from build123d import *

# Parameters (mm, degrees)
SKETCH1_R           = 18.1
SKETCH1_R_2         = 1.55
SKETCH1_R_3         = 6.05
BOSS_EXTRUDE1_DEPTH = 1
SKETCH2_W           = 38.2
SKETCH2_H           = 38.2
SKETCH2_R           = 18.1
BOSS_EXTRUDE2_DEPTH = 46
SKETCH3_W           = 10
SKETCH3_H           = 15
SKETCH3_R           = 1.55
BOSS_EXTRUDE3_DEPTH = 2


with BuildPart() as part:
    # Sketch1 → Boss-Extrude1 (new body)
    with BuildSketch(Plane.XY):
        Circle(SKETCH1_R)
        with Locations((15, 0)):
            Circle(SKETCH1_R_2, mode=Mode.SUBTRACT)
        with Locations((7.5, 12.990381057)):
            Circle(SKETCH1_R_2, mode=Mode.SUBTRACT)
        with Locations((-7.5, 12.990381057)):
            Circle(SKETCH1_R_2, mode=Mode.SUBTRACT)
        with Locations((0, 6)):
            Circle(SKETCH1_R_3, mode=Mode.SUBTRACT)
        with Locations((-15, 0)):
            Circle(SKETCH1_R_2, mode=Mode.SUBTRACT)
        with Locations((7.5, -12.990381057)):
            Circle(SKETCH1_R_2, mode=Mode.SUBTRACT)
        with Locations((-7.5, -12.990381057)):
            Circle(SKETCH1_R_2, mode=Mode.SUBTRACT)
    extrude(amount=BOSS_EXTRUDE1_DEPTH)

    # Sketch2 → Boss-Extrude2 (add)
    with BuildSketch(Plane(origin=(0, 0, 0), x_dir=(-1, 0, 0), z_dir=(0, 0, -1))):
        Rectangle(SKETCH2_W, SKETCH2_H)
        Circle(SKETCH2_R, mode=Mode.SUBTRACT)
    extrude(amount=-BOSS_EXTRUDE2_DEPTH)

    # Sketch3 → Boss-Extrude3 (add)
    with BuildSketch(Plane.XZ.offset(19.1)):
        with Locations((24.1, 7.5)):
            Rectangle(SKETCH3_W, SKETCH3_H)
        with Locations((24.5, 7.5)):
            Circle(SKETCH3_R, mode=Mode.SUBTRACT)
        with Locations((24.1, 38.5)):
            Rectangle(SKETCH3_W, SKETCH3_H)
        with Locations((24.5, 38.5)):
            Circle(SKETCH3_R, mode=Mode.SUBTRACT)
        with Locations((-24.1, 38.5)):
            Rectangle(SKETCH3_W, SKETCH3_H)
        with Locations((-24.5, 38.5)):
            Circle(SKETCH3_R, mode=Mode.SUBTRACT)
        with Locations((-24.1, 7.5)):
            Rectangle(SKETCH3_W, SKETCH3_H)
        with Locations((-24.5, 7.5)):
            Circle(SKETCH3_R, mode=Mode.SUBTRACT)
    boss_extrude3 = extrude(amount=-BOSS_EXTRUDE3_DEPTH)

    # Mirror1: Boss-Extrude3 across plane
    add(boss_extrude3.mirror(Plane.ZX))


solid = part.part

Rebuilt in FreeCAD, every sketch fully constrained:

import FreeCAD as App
import Part
import Sketcher
Q = App.Units.Quantity


def add_polygon(sketch, points):
    """Adds a closed chain of lines whose ends are joined by coincident constraints."""
    first, n = sketch.GeometryCount, len(points)
    for a, b in zip(points, points[1:] + points[:1]):
        sketch.addGeometry(Part.LineSegment(App.Vector(*a, 0), App.Vector(*b, 0)), False)
    for i in range(n):
        sketch.addConstraint(Sketcher.Constraint("Coincident", first + i, 2, first + (i + 1) % n, 1))

doc = App.newDocument("Part")
body = doc.addObject("PartDesign::Body", "Body")

# Sketch on XY plane
sketch1 = body.newObject("Sketcher::SketchObject", "Sketch")
sketch1.AttachmentSupport = (doc.getObject("XY_Plane"), [""])
sketch1.MapMode = "FlatFace"
sketch1.addGeometry([
    Part.Circle(App.Vector(0, 0, 0), App.Vector(0, 0, 1), 18.1),  # 0
    Part.Circle(App.Vector(-7.5, -13, 0), App.Vector(0, 0, 1), 1.6),  # 1
    Part.Circle(App.Vector(-15, 0, 0), App.Vector(0, 0, 1), 1.6),  # 2
    Part.Circle(App.Vector(7.5, -13, 0), App.Vector(0, 0, 1), 1.6),  # 3
    Part.Circle(App.Vector(15, 0, 0), App.Vector(0, 0, 1), 1.6),  # 4
    Part.Circle(App.Vector(0, 6, 0), App.Vector(0, 0, 1), 6),  # 5
    Part.Circle(App.Vector(-7.5, 13, 0), App.Vector(0, 0, 1), 1.6),  # 6
    Part.Circle(App.Vector(7.5, 13, 0), App.Vector(0, 0, 1), 1.6),  # 7
], False)
sketch1.addConstraint([
    Sketcher.Constraint("Coincident", 0, 3, -1, 1),
    Sketcher.Constraint("Equal", 1, 2),
    Sketcher.Constraint("Equal", 2, 3),
    Sketcher.Constraint("Equal", 3, 4),
    Sketcher.Constraint("Equal", 4, 6),
    Sketcher.Constraint("Equal", 6, 7),
    Sketcher.Constraint("Symmetric", 2, 3, 4, 3, -1, 1),
    Sketcher.Constraint("Symmetric", 3, 3, 6, 3, -1, 1),
    Sketcher.Constraint("Symmetric", 1, 3, 7, 3, -1, 1),
    Sketcher.Constraint("Symmetric", 1, 3, 3, 3, -2),
    Sketcher.Constraint("PointOnObject", 2, 3, -1),
    Sketcher.Constraint("PointOnObject", 5, 3, -2),
    Sketcher.Constraint("Diameter", 0, Q("36.2 mm")),
    Sketcher.Constraint("Diameter", 1, Q("3.1 mm")),
    Sketcher.Constraint("Diameter", 5, Q("12.1 mm")),
    Sketcher.Constraint("DistanceX", 2, 3, -1, 1, Q("15 mm")),
    Sketcher.Constraint("DistanceY", -1, 1, 5, 3, Q("6 mm")),
    Sketcher.Constraint("DistanceX", 1, 3, 3, 3, Q("15 mm")),
    Sketcher.Constraint("DistanceY", 1, 3, -1, 1, Q("12.990381 mm")),
])
pad1 = body.newObject("PartDesign::Pad", "Pad")
pad1.Profile = sketch1
pad1.Length = 1

# Sketch on XY plane
sketch2 = body.newObject("Sketcher::SketchObject", "Sketch001")
sketch2.AttachmentSupport = (doc.getObject("XY_Plane"), [""])
sketch2.MapMode = "FlatFace"
add_polygon(sketch2, [(19, 19), (19, -19), (-19, -19), (-19, 19)])  # lines 0-3
sketch2.addGeometry(Part.Circle(App.Vector(0, 0, 0), App.Vector(0, 0, 1), 18), False)  # 4
sketch2.addConstraint([
    Sketcher.Constraint("Vertical", 0),
    Sketcher.Constraint("Horizontal", 1),
    Sketcher.Constraint("Vertical", 2),
    Sketcher.Constraint("Horizontal", 3),
    Sketcher.Constraint("Coincident", 4, 3, -1, 1),
    Sketcher.Constraint("Symmetric", 0, 2, 2, 2, -1, 1),
    Sketcher.Constraint("Equal", 3, 0),
    Sketcher.Constraint("Diameter", 4, Q("36.2 mm")),
    Sketcher.Constraint("DistanceX", 1, 2, 1, 1, Q("38.2 mm")),
])
pad2 = body.newObject("PartDesign::Pad", "Pad001")
pad2.Profile = sketch2
pad2.Length = 46

# Sketch on XZ plane
sketch3 = body.newObject("Sketcher::SketchObject", "Sketch002")
sketch3.AttachmentSupport = (doc.getObject("XZ_Plane"), [""])
sketch3.MapMode = "FlatFace"
sketch3.AttachmentOffset = App.Placement(App.Vector(0, 0, 19.1), App.Rotation())
add_polygon(sketch3, [(19.1, 15), (19.1, 0), (29.1, 0), (29.1, 15)])  # lines 0-3
sketch3.addGeometry(Part.Circle(App.Vector(24.5, 7.5, 0), App.Vector(0, 0, 1), 1.6), False)  # 4
add_polygon(sketch3, [(19.1, 46), (19.1, 31), (29.1, 31), (29.1, 46)])  # lines 5-8
sketch3.addGeometry(Part.Circle(App.Vector(24.5, 38.5, 0), App.Vector(0, 0, 1), 1.6), False)  # 9
add_polygon(sketch3, [(-29.1, 46), (-29.1, 31), (-19.1, 31), (-19.1, 46)])  # lines 10-13
sketch3.addGeometry(Part.Circle(App.Vector(-24.5, 38.5, 0), App.Vector(0, 0, 1), 1.6), False)  # 14
add_polygon(sketch3, [(-29.1, 15), (-29.1, 0), (-19.1, 0), (-19.1, 15)])  # lines 15-18
sketch3.addGeometry(Part.Circle(App.Vector(-24.5, 7.5, 0), App.Vector(0, 0, 1), 1.6), False)  # 19
sketch3.addConstraint([
    Sketcher.Constraint("Vertical", 0),
    Sketcher.Constraint("Horizontal", 1),
    Sketcher.Constraint("Vertical", 2),
    Sketcher.Constraint("Horizontal", 3),
    Sketcher.Constraint("Vertical", 5),
    Sketcher.Constraint("Horizontal", 6),
    Sketcher.Constraint("Vertical", 7),
    Sketcher.Constraint("Horizontal", 8),
    Sketcher.Constraint("Vertical", 10),
    Sketcher.Constraint("Horizontal", 11),
    Sketcher.Constraint("Vertical", 12),
    Sketcher.Constraint("Horizontal", 13),
    Sketcher.Constraint("Vertical", 15),
    Sketcher.Constraint("Horizontal", 16),
    Sketcher.Constraint("Vertical", 17),
    Sketcher.Constraint("Horizontal", 18),
    Sketcher.Constraint("Equal", 4, 9),
    Sketcher.Constraint("Equal", 9, 14),
    Sketcher.Constraint("Equal", 14, 19),
    Sketcher.Constraint("Symmetric", 1, 2, 15, 2, -1, 1),
    Sketcher.Constraint("Symmetric", 9, 3, 14, 3, -2),
    Sketcher.Constraint("Symmetric", 4, 3, 19, 3, -2),
    Sketcher.Constraint("Symmetric", 6, 2, 10, 2, -2),
    Sketcher.Constraint("Symmetric", 8, 2, 12, 2, -2),
    Sketcher.Constraint("Symmetric", 0, 2, 16, 2, -2),
    Sketcher.Constraint("Horizontal", 3, 2, 17, 2),
    Sketcher.Constraint("Vertical", 4, 3, 9, 3),
    Sketcher.Constraint("Vertical", 3, 2, 5, 2),
    Sketcher.Constraint("Vertical", 2, 2, 6, 2),
    Sketcher.Constraint("Equal", 2, 5),
    Sketcher.Constraint("Diameter", 4, Q("3.1 mm")),
    Sketcher.Constraint("DistanceX", 1, 1, 1, 2, Q("10 mm")),
    Sketcher.Constraint("DistanceY", 0, 2, 0, 1, Q("15 mm")),
    Sketcher.Constraint("DistanceY", -1, 1, 5, 2, Q("31 mm")),
    Sketcher.Constraint("DistanceY", 4, 3, 9, 3, Q("31 mm")),
    Sketcher.Constraint("DistanceX", 14, 3, 9, 3, Q("49 mm")),
    Sketcher.Constraint("DistanceY", -1, 1, 4, 3, Q("7.5 mm")),
    Sketcher.Constraint("DistanceX", -1, 1, 0, 2, Q("19.1 mm")),
])
pad3 = body.newObject("PartDesign::Pad", "Pad002")
pad3.Profile = sketch3
pad3.Length = 2
pad3.Reversed = True
doc.recompute()

mirrored = body.newObject("PartDesign::Mirrored", "Mirrored")
mirrored.Originals = [pad3]
mirrored.MirrorPlane = (doc.getObject("XZ_Plane"), [""])
body.Tip = mirrored

doc.recompute()
